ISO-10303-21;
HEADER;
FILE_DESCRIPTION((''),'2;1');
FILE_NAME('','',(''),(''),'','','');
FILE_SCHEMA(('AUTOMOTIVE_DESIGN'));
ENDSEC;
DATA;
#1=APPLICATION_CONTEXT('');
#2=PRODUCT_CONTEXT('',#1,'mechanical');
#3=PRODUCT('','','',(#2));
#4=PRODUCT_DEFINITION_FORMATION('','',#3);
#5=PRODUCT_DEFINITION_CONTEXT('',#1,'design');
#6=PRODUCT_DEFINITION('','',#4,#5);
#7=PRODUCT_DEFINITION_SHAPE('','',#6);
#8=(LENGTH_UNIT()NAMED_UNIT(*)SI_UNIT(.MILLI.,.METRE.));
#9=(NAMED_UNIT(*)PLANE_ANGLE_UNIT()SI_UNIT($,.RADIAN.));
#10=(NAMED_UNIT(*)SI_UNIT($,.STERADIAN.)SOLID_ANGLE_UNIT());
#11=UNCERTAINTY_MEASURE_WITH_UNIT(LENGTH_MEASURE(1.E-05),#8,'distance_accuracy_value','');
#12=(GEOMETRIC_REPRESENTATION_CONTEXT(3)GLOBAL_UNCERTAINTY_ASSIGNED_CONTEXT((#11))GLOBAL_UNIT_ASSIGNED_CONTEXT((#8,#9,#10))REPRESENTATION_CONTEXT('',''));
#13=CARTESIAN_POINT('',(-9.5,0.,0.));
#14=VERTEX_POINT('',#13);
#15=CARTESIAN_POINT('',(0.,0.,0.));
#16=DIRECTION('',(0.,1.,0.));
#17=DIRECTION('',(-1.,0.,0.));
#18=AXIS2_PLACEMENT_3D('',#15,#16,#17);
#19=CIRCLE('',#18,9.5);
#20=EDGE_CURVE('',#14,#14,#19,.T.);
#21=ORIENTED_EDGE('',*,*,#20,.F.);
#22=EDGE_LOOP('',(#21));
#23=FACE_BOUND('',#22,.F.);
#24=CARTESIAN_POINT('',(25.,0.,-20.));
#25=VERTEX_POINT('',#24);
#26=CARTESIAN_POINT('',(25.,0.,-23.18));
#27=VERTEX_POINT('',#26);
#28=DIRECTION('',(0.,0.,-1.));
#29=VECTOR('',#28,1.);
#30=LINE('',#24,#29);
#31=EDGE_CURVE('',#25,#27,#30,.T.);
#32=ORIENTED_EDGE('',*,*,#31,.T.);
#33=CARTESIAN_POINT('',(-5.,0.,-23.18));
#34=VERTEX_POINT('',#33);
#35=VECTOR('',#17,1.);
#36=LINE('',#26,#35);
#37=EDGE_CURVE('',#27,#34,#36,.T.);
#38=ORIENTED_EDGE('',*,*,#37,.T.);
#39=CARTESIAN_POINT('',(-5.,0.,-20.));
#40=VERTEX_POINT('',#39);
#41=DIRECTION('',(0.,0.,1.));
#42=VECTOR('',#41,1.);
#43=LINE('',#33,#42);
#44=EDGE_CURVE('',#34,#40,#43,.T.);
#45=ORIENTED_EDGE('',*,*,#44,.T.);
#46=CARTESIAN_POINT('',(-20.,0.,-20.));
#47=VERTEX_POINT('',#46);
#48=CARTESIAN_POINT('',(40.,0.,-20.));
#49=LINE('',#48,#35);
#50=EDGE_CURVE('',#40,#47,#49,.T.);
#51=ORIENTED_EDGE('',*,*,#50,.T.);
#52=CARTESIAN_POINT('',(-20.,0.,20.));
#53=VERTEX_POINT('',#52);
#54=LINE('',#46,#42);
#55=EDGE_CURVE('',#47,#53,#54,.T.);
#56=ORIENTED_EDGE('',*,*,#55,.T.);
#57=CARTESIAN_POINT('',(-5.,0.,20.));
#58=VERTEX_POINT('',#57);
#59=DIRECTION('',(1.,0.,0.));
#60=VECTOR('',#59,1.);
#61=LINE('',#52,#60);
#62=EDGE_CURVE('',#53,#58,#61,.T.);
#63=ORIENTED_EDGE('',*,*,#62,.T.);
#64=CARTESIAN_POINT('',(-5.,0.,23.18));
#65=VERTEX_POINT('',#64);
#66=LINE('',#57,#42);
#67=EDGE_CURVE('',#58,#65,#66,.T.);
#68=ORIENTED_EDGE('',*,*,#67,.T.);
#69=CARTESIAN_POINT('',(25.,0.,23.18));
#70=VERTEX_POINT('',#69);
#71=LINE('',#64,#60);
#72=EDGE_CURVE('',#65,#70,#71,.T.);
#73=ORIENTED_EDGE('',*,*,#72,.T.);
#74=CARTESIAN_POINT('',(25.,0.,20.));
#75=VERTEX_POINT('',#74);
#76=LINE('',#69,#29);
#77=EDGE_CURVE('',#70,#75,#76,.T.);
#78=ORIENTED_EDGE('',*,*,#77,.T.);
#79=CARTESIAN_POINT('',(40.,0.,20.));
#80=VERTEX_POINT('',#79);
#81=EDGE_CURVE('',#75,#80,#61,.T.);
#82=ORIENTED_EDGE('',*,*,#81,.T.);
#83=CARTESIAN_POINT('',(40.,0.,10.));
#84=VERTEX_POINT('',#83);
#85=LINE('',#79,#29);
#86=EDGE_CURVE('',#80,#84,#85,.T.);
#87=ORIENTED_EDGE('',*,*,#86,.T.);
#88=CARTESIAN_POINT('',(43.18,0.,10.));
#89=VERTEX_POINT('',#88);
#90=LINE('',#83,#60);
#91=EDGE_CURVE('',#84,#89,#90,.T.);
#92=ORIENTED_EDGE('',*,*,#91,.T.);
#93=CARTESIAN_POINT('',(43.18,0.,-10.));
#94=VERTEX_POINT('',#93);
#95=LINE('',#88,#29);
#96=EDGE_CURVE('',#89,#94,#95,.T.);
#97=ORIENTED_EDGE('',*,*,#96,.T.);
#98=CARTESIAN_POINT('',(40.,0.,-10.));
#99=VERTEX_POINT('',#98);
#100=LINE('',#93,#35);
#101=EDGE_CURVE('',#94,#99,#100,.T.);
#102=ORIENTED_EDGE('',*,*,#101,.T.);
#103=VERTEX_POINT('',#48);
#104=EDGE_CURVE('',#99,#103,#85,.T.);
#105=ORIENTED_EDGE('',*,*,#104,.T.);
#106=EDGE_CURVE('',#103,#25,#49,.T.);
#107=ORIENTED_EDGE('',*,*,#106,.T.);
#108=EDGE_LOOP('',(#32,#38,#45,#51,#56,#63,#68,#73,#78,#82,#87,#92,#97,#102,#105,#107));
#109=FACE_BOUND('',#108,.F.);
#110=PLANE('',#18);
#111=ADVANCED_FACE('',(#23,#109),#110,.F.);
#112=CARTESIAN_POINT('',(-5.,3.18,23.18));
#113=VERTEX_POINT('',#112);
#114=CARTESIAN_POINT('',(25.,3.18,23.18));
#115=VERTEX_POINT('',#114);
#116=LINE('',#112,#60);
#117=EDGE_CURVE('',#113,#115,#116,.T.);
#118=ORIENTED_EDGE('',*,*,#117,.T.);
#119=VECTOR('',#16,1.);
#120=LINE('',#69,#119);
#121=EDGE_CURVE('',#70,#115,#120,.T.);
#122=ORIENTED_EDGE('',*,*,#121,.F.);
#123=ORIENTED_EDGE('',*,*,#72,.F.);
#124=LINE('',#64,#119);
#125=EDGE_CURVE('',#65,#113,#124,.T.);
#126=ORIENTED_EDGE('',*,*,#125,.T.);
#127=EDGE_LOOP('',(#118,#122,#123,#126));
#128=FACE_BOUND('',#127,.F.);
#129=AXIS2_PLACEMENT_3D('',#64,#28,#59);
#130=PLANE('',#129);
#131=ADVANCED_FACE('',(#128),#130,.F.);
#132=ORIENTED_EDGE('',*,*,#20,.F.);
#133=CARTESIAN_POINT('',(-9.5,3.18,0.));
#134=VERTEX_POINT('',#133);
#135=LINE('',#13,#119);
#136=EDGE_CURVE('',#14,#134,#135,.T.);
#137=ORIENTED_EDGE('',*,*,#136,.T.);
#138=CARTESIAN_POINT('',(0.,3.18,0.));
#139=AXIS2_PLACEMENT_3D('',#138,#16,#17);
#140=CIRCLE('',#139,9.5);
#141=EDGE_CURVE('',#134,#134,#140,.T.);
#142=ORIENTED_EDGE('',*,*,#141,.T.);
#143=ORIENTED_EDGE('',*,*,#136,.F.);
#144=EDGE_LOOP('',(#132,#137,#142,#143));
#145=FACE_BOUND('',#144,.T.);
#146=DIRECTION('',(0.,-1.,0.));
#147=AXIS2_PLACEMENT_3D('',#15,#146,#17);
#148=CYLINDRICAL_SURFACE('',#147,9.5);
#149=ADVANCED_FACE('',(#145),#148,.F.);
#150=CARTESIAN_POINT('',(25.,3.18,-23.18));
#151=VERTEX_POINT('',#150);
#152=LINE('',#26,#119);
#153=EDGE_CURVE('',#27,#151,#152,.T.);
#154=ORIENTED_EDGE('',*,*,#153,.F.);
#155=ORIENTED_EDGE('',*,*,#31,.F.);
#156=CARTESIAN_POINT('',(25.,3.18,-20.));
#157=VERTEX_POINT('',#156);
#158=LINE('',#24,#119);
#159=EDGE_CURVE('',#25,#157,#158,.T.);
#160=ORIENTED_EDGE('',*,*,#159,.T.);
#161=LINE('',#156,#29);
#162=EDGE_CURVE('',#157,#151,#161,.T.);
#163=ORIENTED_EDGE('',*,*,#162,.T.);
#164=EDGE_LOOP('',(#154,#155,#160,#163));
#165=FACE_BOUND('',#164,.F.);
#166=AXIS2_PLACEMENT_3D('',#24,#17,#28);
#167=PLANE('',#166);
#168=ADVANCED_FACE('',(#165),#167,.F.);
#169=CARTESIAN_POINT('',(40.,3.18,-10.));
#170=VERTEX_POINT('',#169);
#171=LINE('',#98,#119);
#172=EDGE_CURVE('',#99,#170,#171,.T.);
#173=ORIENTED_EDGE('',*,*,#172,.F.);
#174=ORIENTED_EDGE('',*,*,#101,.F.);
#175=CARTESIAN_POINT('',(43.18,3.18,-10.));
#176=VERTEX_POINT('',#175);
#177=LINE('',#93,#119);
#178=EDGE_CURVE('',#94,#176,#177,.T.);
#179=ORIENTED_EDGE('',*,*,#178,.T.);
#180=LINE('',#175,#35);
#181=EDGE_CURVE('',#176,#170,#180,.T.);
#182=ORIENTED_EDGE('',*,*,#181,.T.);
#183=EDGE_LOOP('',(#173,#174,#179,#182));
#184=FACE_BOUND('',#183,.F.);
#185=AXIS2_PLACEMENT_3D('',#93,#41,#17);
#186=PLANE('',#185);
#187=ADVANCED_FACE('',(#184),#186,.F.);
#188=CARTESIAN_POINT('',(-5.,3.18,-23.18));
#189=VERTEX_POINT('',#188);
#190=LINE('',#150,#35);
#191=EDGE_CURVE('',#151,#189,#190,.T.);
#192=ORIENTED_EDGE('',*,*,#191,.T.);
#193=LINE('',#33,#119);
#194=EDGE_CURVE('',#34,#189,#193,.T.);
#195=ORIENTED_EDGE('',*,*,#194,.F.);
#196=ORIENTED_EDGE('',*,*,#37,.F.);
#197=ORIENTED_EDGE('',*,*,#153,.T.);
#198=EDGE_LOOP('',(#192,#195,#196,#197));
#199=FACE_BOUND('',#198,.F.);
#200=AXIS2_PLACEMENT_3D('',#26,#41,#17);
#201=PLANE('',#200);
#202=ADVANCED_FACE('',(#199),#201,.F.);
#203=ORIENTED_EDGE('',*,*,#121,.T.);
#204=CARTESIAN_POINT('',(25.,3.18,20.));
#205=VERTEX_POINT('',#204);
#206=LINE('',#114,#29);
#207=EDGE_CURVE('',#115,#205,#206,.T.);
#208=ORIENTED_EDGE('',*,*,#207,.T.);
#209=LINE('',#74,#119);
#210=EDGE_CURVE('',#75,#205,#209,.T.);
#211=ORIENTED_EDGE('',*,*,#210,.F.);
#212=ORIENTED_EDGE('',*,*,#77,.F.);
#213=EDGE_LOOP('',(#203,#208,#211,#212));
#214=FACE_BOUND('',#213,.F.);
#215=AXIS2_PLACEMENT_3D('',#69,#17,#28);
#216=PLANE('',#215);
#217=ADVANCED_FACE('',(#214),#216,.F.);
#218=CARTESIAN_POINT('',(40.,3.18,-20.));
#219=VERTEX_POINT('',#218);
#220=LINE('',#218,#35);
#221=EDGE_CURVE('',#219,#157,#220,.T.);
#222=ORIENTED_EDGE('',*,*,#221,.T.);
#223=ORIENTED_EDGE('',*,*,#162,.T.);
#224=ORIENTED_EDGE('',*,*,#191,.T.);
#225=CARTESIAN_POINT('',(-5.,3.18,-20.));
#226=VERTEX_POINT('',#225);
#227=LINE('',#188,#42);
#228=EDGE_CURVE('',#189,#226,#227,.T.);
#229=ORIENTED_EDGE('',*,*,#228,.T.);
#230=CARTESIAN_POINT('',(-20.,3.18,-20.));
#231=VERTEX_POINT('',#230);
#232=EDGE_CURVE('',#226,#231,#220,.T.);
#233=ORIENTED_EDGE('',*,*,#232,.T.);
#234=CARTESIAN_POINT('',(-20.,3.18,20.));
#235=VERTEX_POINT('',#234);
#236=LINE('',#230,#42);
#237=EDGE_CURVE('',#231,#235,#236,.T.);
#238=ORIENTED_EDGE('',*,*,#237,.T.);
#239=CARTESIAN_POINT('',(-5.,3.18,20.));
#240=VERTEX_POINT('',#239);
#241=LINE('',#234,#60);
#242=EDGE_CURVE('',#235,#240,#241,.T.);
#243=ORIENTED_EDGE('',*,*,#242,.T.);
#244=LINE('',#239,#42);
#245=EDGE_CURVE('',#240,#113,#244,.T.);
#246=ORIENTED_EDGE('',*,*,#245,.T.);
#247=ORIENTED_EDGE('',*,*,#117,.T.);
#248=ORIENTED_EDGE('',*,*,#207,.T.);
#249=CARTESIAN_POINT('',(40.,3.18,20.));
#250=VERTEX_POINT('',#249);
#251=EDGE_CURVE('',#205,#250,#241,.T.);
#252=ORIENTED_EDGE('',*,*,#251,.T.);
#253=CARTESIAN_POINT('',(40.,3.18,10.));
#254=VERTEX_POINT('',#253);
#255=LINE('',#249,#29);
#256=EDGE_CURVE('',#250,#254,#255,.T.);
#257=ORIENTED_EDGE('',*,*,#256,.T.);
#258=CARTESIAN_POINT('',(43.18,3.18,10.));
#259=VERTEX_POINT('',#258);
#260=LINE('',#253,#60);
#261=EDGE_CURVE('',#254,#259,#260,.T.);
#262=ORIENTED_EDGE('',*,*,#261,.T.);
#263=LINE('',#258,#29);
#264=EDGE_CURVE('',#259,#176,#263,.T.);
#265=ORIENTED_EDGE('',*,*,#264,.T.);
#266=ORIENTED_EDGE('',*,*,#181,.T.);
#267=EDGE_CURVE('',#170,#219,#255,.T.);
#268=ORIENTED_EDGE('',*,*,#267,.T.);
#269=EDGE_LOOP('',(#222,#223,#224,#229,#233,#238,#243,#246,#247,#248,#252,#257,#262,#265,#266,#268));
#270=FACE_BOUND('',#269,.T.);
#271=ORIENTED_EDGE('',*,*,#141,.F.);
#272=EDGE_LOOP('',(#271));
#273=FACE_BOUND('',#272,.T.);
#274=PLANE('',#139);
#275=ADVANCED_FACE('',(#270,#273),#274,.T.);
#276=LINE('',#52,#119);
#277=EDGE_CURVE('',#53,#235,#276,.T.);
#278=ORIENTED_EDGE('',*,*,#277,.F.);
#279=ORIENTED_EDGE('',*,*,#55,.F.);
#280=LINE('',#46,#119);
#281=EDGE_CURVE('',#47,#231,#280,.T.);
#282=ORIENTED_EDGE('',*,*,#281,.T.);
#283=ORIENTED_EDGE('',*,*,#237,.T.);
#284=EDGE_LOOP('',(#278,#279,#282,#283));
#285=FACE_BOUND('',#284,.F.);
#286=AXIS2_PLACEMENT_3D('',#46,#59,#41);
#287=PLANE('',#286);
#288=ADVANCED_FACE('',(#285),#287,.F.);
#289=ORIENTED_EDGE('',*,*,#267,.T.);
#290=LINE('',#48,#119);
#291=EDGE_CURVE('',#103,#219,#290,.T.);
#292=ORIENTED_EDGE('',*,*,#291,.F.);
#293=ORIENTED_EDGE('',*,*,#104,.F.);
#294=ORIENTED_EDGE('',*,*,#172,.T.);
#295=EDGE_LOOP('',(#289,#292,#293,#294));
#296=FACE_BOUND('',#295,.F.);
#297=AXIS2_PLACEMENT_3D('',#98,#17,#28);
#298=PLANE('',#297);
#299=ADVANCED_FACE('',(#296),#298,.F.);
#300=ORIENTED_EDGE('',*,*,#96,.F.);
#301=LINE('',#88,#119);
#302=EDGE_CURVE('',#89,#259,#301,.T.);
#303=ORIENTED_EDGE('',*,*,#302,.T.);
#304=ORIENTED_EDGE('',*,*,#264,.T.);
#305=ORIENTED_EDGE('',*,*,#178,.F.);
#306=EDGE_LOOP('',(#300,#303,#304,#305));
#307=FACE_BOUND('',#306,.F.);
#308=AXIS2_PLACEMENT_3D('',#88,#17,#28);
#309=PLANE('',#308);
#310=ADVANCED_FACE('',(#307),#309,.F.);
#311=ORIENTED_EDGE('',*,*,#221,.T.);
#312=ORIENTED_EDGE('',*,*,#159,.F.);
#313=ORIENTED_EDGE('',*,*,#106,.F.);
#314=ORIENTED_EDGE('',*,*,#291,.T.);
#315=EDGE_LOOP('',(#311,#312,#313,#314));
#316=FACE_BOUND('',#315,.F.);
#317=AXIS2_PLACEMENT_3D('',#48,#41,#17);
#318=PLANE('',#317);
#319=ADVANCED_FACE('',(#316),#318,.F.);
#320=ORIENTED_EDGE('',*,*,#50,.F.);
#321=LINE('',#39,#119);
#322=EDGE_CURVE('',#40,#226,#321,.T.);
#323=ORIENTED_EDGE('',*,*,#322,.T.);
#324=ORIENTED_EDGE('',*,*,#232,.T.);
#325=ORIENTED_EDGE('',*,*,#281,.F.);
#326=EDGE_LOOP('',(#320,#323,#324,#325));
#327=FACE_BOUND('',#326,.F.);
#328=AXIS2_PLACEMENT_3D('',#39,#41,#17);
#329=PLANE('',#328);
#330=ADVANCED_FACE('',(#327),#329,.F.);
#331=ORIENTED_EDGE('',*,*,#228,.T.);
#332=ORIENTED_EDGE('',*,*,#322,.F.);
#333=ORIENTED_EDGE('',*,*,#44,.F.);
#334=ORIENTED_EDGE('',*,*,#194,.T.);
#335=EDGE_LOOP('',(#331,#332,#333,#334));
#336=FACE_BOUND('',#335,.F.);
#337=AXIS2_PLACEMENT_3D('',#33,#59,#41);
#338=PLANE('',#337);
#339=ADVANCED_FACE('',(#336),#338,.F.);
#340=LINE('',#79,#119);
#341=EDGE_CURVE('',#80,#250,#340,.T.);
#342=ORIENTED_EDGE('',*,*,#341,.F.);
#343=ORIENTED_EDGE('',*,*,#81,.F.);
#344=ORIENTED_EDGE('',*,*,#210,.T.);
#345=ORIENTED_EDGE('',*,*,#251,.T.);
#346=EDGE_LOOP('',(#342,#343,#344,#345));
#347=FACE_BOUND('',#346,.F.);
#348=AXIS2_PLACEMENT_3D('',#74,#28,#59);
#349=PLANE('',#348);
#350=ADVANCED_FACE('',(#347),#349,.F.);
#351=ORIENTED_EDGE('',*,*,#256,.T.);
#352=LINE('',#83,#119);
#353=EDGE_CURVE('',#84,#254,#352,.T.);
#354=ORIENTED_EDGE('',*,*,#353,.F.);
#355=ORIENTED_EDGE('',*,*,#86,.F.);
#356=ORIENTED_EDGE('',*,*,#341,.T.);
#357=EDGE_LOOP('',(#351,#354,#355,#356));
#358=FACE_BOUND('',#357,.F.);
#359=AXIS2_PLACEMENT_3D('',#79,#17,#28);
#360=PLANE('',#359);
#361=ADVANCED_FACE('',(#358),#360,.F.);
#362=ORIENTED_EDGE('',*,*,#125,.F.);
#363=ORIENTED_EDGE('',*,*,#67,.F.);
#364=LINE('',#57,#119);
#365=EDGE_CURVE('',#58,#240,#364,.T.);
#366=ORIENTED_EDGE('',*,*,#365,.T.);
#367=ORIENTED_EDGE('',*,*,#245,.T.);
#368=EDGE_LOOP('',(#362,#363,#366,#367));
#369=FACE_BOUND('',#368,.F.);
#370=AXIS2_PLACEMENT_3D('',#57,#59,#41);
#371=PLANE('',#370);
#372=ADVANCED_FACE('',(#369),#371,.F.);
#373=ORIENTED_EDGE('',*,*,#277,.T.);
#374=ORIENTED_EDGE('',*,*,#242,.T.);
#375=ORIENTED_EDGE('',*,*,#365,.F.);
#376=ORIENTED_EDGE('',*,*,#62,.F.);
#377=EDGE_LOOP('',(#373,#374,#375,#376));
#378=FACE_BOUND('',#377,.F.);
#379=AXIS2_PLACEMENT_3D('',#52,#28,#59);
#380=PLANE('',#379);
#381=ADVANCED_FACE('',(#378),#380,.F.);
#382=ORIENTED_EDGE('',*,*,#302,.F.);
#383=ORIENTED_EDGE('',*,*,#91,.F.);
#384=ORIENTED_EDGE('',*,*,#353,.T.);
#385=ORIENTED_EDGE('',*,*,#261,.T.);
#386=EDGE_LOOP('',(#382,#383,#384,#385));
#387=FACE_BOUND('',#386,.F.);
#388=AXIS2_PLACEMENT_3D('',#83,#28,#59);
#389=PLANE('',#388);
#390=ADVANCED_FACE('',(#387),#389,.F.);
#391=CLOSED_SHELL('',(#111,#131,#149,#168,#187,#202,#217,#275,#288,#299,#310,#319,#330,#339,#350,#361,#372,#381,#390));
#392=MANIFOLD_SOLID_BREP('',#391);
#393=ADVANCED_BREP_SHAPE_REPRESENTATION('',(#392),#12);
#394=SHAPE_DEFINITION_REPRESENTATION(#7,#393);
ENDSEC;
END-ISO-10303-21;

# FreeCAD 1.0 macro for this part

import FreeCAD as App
import Part
import Sketcher

V = App.Vector
Q = App.Units.Quantity


def add_polygon(sketch, points):
    """Adds a closed chain of lines whose ends are joined by coincident constraints."""
    first, n = sketch.GeometryCount, len(points)
    for a, b in zip(points, points[1:] + points[:1]):
        sketch.addGeometry(Part.LineSegment(App.Vector(*a, 0), App.Vector(*b, 0)), False)
    for i in range(n):
        sketch.addConstraint(Sketcher.Constraint("Coincident", first + i, 2, first + (i + 1) % n, 1))

doc = App.newDocument("Part")
body = doc.addObject("PartDesign::Body", "Body")

# Sketch on XZ plane
sketch1 = body.newObject("Sketcher::SketchObject", "Sketch")
sketch1.AttachmentSupport = (doc.getObject("XZ_Plane"), [""])
sketch1.MapMode = "FlatFace"
add_polygon(sketch1, [(-20, -20), (-20, 20), (-5, 20), (-5, 23.18), (25, 23.18), (25, 20), (40, 20), (40, 10), (43.18, 10), (43.18, -10), (40, -10), (40, -20), (25, -20), (25, -23.18), (-5, -23.18), (-5, -20)])  # lines 0-15
sketch1.addGeometry(Part.Circle(V(0, 0, 0), V(0, 0, 1), 9.5), False)  # 16
sketch1.addConstraint([
    Sketcher.Constraint("Vertical", 0),
    Sketcher.Constraint("Horizontal", 1),
    Sketcher.Constraint("Vertical", 2),
    Sketcher.Constraint("Horizontal", 3),
    Sketcher.Constraint("Vertical", 4),
    Sketcher.Constraint("Horizontal", 5),
    Sketcher.Constraint("Vertical", 6),
    Sketcher.Constraint("Horizontal", 7),
    Sketcher.Constraint("Vertical", 8),
    Sketcher.Constraint("Horizontal", 9),
    Sketcher.Constraint("Vertical", 10),
    Sketcher.Constraint("Horizontal", 11),
    Sketcher.Constraint("Vertical", 12),
    Sketcher.Constraint("Horizontal", 13),
    Sketcher.Constraint("Vertical", 14),
    Sketcher.Constraint("Horizontal", 15),
    Sketcher.Constraint("Coincident", 16, 3, -1, 1),
    Sketcher.Constraint("Symmetric", 6, 2, 9, 2, -1),
    Sketcher.Constraint("Symmetric", 4, 2, 11, 2, -1),
    Sketcher.Constraint("Symmetric", 2, 2, 13, 2, -1),
    Sketcher.Constraint("Horizontal", 1, 2, 4, 2),
    Sketcher.Constraint("Horizontal", 11, 2, 14, 2),
    Sketcher.Constraint("Equal", 1, 5),
    Sketcher.Constraint("Equal", 9, 2),
    Sketcher.Constraint("Diameter", 16, Q("19 mm")),
    Sketcher.Constraint("DistanceX", 1, 1, 1, 2, Q("15 mm")),
    Sketcher.Constraint("DistanceX", 3, 1, 3, 2, Q("30 mm")),
    Sketcher.Constraint("DistanceY", 0, 1, 0, 2, Q("40 mm")),
    Sketcher.Constraint("DistanceY", 6, 2, 6, 1, Q("10 mm")),
    Sketcher.Constraint("DistanceX", 0, 2, -1, 1, Q("20 mm")),
    Sketcher.Constraint("DistanceX", 7, 1, 7, 2, Q("3.18 mm")),
])
pad1 = body.newObject("PartDesign::Pad", "Pad")
pad1.Profile = sketch1
pad1.Length = 3.18
pad1.Reversed = True

doc.recompute()
